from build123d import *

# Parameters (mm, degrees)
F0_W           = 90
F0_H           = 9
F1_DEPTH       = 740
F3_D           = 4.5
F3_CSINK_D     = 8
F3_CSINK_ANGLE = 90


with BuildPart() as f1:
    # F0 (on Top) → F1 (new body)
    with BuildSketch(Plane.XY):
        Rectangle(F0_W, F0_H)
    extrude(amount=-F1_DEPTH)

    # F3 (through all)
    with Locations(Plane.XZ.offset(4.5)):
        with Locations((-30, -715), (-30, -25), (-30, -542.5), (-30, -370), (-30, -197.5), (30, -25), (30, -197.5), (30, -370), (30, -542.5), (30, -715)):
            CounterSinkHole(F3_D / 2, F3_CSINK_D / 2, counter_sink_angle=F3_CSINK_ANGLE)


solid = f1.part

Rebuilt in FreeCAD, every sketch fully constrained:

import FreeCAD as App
import Part
import Sketcher


def add_polygon(sketch, points):
    """Adds a closed chain of lines whose ends are joined by coincident constraints."""
    first, n = sketch.GeometryCount, len(points)
    for a, b in zip(points, points[1:] + points[:1]):
        sketch.addGeometry(Part.LineSegment(App.Vector(*a, 0), App.Vector(*b, 0)), False)
    for i in range(n):
        sketch.addConstraint(Sketcher.Constraint("Coincident", first + i, 2, first + (i + 1) % n, 1))

doc = App.newDocument("Part")
body = doc.addObject("PartDesign::Body", "Body")

sketch1 = body.newObject("Sketcher::SketchObject", "Sketch")
sketch1.AttachmentSupport = (doc.getObject("XY_Plane"), [""])
sketch1.MapMode = "FlatFace"
add_polygon(sketch1, [(-45, 4), (-45, -4), (45, -4), (45, 4)])
sketch1.addConstraint([
    Sketcher.Constraint("Vertical", 0),
    Sketcher.Constraint("Horizontal", 1),
    Sketcher.Constraint("Vertical", 2),
    Sketcher.Constraint("Horizontal", 3),
    Sketcher.Constraint("Symmetric", 0, 2, 2, 2, -1, 1),
    Sketcher.Constraint("DistanceX", 1, 1, 1, 2, 90.0),
    Sketcher.Constraint("DistanceY", 0, 2, 0, 1, 9.0),
])
pad1 = body.newObject("PartDesign::Pad", "Pad")
pad1.Profile = sketch1
pad1.Length = 740
pad1.Reversed = True

sketch2 = body.newObject("Sketcher::SketchObject", "Sketch001")
sketch2.AttachmentSupport = (doc.getObject("XZ_Plane"), [""])
sketch2.MapMode = "FlatFace"
sketch2.AttachmentOffset = App.Placement(App.Vector(0, 0, 4.5), App.Rotation())
sketch2.addGeometry([
    Part.Circle(App.Vector(-30, -715, 0), App.Vector(0, 0, 1), 2.2),
    Part.Circle(App.Vector(-30, -25, 0), App.Vector(0, 0, 1), 2.2),
    Part.Circle(App.Vector(-30, -542.5, 0), App.Vector(0, 0, 1), 2.2),
    Part.Circle(App.Vector(-30, -370, 0), App.Vector(0, 0, 1), 2.2),
    Part.Circle(App.Vector(-30, -197.5, 0), App.Vector(0, 0, 1), 2.2),
    Part.Circle(App.Vector(30, -25, 0), App.Vector(0, 0, 1), 2.2),
    Part.Circle(App.Vector(30, -197.5, 0), App.Vector(0, 0, 1), 2.2),
    Part.Circle(App.Vector(30, -370, 0), App.Vector(0, 0, 1), 2.2),
    Part.Circle(App.Vector(30, -542.5, 0), App.Vector(0, 0, 1), 2.2),
    Part.Circle(App.Vector(30, -715, 0), App.Vector(0, 0, 1), 2.2),
], False)
sketch2.addConstraint([
    Sketcher.Constraint("Equal", 0, 1),
    Sketcher.Constraint("Equal", 1, 2),
    Sketcher.Constraint("Equal", 2, 3),
    Sketcher.Constraint("Equal", 3, 4),
    Sketcher.Constraint("Equal", 4, 5),
    Sketcher.Constraint("Equal", 5, 6),
    Sketcher.Constraint("Equal", 6, 7),
    Sketcher.Constraint("Equal", 7, 8),
    Sketcher.Constraint("Equal", 8, 9),
    Sketcher.Constraint("Symmetric", 1, 3, 5, 3, -2),
    Sketcher.Constraint("Symmetric", 4, 3, 6, 3, -2),
    Sketcher.Constraint("Symmetric", 3, 3, 7, 3, -2),
    Sketcher.Constraint("Symmetric", 2, 3, 8, 3, -2),
    Sketcher.Constraint("Symmetric", 0, 3, 9, 3, -2),
    Sketcher.Constraint("Vertical", 0, 3, 1, 3),
    Sketcher.Constraint("Vertical", 1, 3, 2, 3),
    Sketcher.Constraint("Vertical", 2, 3, 3, 3),
    Sketcher.Constraint("Vertical", 3, 3, 4, 3),
    Sketcher.Constraint("Diameter", 0, 4.5),
    Sketcher.Constraint("DistanceX", 0, 3, -1, 1, 30.0),
    Sketcher.Constraint("DistanceY", 0, 3, -1, 1, 715.0),
    Sketcher.Constraint("DistanceY", 1, 3, -1, 1, 25.0),
    Sketcher.Constraint("DistanceY", 3, 3, -1, 1, 370.0),
    Sketcher.Constraint("DistanceY", 2, 3, 4, 3, 345.0),
    Sketcher.Constraint("DistanceY", 2, 3, -1, 1, 542.5),
])
doc.recompute()
hole = body.newObject("PartDesign::Hole", "Hole")
hole.Profile = sketch2
hole.ThreadType = "None"
hole.Diameter = 4.5
hole.DepthType = "ThroughAll"
hole.HoleCutType = "Countersink"
hole.HoleCutDiameter = 8
hole.HoleCutCountersinkAngle = 90

doc.recompute()
